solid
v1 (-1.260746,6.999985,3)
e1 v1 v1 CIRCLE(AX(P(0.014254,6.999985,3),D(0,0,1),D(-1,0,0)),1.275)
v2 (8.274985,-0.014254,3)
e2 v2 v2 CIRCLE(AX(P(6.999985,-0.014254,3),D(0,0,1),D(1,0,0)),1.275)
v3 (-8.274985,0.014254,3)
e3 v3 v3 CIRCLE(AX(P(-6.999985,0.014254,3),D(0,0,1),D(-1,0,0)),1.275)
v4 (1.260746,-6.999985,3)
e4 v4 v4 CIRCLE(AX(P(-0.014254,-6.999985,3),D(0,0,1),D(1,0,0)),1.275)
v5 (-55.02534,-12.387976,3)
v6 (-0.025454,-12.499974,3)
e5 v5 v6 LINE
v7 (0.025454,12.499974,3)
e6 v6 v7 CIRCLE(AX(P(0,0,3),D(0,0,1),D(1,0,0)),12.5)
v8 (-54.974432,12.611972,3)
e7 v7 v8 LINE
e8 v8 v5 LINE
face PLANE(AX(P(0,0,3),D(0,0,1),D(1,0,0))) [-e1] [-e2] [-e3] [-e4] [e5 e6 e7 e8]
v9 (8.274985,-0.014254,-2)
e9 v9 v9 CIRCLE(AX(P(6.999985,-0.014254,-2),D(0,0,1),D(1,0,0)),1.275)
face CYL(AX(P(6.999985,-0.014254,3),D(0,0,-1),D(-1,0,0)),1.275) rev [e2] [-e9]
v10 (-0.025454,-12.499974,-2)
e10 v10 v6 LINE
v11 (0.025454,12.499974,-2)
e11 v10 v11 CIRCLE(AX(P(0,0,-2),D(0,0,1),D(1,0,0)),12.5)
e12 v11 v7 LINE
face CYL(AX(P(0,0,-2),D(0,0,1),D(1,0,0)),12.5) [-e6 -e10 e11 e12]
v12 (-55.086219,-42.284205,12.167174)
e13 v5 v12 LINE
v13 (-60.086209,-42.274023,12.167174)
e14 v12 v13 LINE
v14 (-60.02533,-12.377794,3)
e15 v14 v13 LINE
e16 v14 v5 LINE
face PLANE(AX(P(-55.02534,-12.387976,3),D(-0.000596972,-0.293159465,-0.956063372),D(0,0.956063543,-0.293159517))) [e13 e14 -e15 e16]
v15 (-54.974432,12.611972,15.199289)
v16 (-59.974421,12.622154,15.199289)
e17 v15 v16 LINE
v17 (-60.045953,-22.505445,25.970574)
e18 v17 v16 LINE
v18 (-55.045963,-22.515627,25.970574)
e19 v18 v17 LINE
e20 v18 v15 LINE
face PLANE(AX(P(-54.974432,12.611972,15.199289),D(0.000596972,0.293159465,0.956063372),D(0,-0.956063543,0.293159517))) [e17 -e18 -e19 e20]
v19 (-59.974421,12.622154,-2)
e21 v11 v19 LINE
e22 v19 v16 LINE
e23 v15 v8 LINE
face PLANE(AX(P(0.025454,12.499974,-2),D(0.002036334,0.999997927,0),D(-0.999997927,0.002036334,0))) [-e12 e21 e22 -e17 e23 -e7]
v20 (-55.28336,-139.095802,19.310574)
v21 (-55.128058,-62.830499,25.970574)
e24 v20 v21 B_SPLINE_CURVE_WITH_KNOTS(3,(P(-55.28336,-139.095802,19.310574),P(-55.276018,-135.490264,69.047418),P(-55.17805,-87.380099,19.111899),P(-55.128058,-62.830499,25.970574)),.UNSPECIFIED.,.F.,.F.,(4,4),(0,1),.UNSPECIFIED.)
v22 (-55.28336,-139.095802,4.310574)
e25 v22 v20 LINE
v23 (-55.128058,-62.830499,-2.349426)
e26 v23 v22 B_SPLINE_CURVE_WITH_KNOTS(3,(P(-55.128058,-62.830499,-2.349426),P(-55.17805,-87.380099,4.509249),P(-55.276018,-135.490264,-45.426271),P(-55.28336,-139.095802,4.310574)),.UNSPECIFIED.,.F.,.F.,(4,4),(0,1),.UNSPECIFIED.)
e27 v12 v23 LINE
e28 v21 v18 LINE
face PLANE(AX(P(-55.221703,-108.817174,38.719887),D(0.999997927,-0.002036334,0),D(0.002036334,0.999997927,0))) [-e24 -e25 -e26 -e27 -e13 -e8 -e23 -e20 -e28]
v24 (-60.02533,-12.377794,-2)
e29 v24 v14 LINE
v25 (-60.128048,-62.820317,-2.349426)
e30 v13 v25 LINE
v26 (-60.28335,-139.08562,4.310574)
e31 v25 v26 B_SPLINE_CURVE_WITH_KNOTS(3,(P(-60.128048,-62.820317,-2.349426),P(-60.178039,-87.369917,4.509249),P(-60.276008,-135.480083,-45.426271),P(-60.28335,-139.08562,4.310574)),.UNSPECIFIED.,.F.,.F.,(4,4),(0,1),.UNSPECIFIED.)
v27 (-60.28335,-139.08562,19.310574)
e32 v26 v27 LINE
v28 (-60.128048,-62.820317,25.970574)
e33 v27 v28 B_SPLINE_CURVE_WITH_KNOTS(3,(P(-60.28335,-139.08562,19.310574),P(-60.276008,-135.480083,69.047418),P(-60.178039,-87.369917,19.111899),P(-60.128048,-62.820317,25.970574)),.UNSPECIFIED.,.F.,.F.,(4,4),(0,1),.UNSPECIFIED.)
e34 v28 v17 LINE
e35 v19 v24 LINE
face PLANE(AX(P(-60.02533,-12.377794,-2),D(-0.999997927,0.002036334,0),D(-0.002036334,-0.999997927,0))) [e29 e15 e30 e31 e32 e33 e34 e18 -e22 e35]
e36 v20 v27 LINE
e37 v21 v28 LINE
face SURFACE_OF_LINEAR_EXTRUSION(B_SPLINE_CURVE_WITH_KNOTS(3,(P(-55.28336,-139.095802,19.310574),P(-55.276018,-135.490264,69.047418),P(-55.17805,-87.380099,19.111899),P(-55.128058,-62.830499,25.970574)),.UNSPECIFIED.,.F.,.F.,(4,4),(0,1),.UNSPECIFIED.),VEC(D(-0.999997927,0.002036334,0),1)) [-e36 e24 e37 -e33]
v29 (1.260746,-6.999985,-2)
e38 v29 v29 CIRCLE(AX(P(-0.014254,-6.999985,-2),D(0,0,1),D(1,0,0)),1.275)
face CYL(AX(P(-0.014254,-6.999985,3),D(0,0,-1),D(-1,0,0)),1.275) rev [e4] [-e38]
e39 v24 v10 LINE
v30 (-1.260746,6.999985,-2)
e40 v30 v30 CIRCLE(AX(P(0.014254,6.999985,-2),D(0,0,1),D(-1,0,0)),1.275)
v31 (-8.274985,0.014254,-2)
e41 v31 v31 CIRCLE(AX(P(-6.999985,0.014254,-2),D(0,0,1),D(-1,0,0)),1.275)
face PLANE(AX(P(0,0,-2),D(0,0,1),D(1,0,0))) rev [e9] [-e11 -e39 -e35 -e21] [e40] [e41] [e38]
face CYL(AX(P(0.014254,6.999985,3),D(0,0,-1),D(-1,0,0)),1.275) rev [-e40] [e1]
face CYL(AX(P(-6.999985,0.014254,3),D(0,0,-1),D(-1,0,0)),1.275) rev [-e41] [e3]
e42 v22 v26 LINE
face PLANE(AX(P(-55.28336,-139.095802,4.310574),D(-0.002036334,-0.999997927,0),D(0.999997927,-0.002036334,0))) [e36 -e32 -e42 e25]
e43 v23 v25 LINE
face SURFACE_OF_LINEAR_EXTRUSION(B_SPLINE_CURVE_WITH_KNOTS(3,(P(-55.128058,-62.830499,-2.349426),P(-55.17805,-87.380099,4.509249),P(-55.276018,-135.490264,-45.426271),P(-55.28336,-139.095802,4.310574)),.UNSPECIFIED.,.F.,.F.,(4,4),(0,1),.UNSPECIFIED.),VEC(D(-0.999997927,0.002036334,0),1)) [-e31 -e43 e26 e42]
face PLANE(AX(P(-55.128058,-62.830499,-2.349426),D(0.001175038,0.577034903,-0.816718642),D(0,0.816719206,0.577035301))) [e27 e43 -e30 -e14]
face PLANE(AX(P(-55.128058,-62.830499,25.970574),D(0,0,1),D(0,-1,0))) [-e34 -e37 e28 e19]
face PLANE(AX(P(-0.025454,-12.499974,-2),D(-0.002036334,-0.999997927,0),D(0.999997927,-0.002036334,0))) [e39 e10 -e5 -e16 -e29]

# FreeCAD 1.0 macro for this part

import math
import FreeCAD as App
import Part
import Sketcher

V = App.Vector
Q = App.Units.Quantity

doc = App.newDocument("Part")
params = doc.addObject("Spreadsheet::Sheet", "Params")
for row, (alias, value) in enumerate([
    ("sketch1_diameter", "20 mm"),
    ("sketch1_diameter2", "2.55 mm"),
    ("pad1_length", "3 mm"),
    ("sketch2_radius", "12.5 mm"),
    ("sketch2_diameter", "2.55 mm"),
    ("sketch2_length", "60 mm"),
    ("pad2_length", "5 mm"),
    ("sketch3_width", "25 mm"),
    ("pad3_length", "5 mm"),
], start=1):
    params.set(f"A{row}", alias)
    params.set(f"B{row}", "=" + value)
    params.setAlias(f"B{row}", alias)

body = doc.addObject("PartDesign::Body", "Body")

# Sketch on XY plane
sketch1 = doc.addObject("Sketcher::SketchObject", "Sketch")
body.addObject(sketch1)
sketch1.AttachmentSupport = (doc.XY_Plane, [""])
sketch1.MapMode = "FlatFace"
sketch1.addGeometry(Part.Circle(V(0, 0, 0), V(0, 0, 1), 10), False)
sketch1.addGeometry(Part.Circle(V(0, -7, 0), V(0, 0, 1), 1.3), False)
sketch1.addGeometry(Part.Circle(V(7, 0, 0), V(0, 0, 1), 1.3), False)
sketch1.addGeometry(Part.Circle(V(-7, 0, 0), V(0, 0, 1), 1.3), False)
sketch1.addGeometry(Part.Circle(V(0, 7, 0), V(0, 0, 1), 1.3), False)
sketch1.addConstraint(Sketcher.Constraint("Coincident", 0, 3, -1, 1))
sketch1.addConstraint(Sketcher.Constraint("Equal", 1, 2))
sketch1.addConstraint(Sketcher.Constraint("Equal", 2, 3))
sketch1.addConstraint(Sketcher.Constraint("Equal", 3, 4))
sketch1.addConstraint(Sketcher.Constraint("Symmetric", 2, 3, 3, 3, -1, 1))
sketch1.addConstraint(Sketcher.Constraint("Symmetric", 1, 3, 4, 3, -1, 1))
sketch1.addConstraint(Sketcher.Constraint("Diameter", 0, Q("20 mm")))
sketch1.addConstraint(Sketcher.Constraint("Diameter", 1, Q("2.55 mm")))
sketch1.addConstraint(Sketcher.Constraint("DistanceX", 1, 3, 2, 3, Q("7.01424 mm")))
sketch1.addConstraint(Sketcher.Constraint("DistanceY", 1, 3, 2, 3, Q("6.985731 mm")))
sketch1.addConstraint(Sketcher.Constraint("DistanceX", 3, 3, 1, 3, Q("6.985731 mm")))
sketch1.addConstraint(Sketcher.Constraint("DistanceY", 1, 3, 3, 3, Q("7.01424 mm")))
sketch1.setExpression("Constraints[6]", "Params.sketch1_diameter")
sketch1.setExpression("Constraints[7]", "Params.sketch1_diameter2")
pad1 = doc.addObject("PartDesign::Pad", "Pad")
body.addObject(pad1)
pad1.Profile = sketch1
pad1.setExpression("Length", "Params.pad1_length")

# Sketch on XY plane
sketch2 = doc.addObject("Sketcher::SketchObject", "Sketch001")
body.addObject(sketch2)
sketch2.AttachmentSupport = (doc.XY_Plane, [""])
sketch2.MapMode = "FlatFace"
sketch2.AttachmentOffset = App.Placement(V(0, 0, 3), App.Rotation())
sketch2.addGeometry(Part.LineSegment(V(-60, -12.4, 0), V(0, -12.5, 0)), False)
sketch2.addGeometry(Part.ArcOfCircle(Part.Circle(V(0, 0, 0), V(0, 0, 1), 12.5), math.radians(-90), math.radians(90)), False)
sketch2.addGeometry(Part.LineSegment(V(0, 12.5, 0), V(-60, 12.6, 0)), False)
sketch2.addGeometry(Part.LineSegment(V(-60, 12.6, 0), V(-60, -12.4, 0)), False)
sketch2.addGeometry(Part.Circle(V(7, 0, 0), V(0, 0, 1), 1.3), False)
sketch2.addGeometry(Part.Circle(V(0, -7, 0), V(0, 0, 1), 1.3), False)
sketch2.addGeometry(Part.Circle(V(0, 7, 0), V(0, 0, 1), 1.3), False)
sketch2.addGeometry(Part.Circle(V(-7, 0, 0), V(0, 0, 1), 1.3), False)
sketch2.addConstraint(Sketcher.Constraint("Tangent", 0, 2, 1, 1))
sketch2.addConstraint(Sketcher.Constraint("Tangent", 1, 2, 2, 1))
sketch2.addConstraint(Sketcher.Constraint("Coincident", 2, 2, 3, 1))
sketch2.addConstraint(Sketcher.Constraint("Coincident", 3, 2, 0, 1))
sketch2.addConstraint(Sketcher.Constraint("Coincident", 1, 3, -1, 1))
sketch2.addConstraint(Sketcher.Constraint("Equal", 4, 5))
sketch2.addConstraint(Sketcher.Constraint("Equal", 5, 6))
sketch2.addConstraint(Sketcher.Constraint("Equal", 6, 7))
sketch2.addConstraint(Sketcher.Constraint("Symmetric", 5, 3, 6, 3, -1, 1))
sketch2.addConstraint(Sketcher.Constraint("Symmetric", 4, 3, 7, 3, -1, 1))
sketch2.addConstraint(Sketcher.Constraint("Parallel", 0, 2))
sketch2.addConstraint(Sketcher.Constraint("Perpendicular", 2, 3))
sketch2.addConstraint(Sketcher.Constraint("Radius", 1, Q("12.5 mm")))
sketch2.addConstraint(Sketcher.Constraint("Diameter", 4, Q("2.55 mm")))
sketch2.addConstraint(Sketcher.Constraint("Distance", 0, Q("60 mm")))
sketch2.addConstraint(Sketcher.Constraint("DistanceX", 0, 2, 5, 3, Q("0.0112 mm")))
sketch2.addConstraint(Sketcher.Constraint("DistanceY", 7, 3, 2, 2, Q("12.6079 mm")))
sketch2.addConstraint(Sketcher.Constraint("DistanceX", 2, 2, -1, 1, Q("59.974421 mm")))
sketch2.addConstraint(Sketcher.Constraint("DistanceX", 5, 3, 4, 3, Q("7.01424 mm")))
sketch2.addConstraint(Sketcher.Constraint("DistanceY", 5, 3, 4, 3, Q("6.985731 mm")))
sketch2.setExpression("Constraints[12]", "Params.sketch2_radius")
sketch2.setExpression("Constraints[13]", "Params.sketch2_diameter")
sketch2.setExpression("Constraints[14]", "Params.sketch2_length")
pad2 = doc.addObject("PartDesign::Pad", "Pad001")
body.addObject(pad2)
pad2.Profile = sketch2
pad2.setExpression("Length", "Params.pad2_length")
pad2.Reversed = True

# Sketch on an angled plane
sketch3 = doc.addObject("Sketcher::SketchObject", "Sketch002")
body.addObject(sketch3)
sketch3.Placement = App.Placement(V(-59.999876, 0.12218, 0), App.Rotation(V(0.002036334, 0.999997927, 0), V(0, 0, -1.000000001), V(-0.999997927, 0.002036334, 0), "ZXY"))
sketch3.addGeometry(Part.LineSegment(V(-62.942628, -25.970574, 0), V(-22.627672, -25.970574, 0)), False)
sketch3.addGeometry(Part.LineSegment(V(-22.627672, -25.970574, 0), V(12.5, -15.199289, 0)), False)
sketch3.addGeometry(Part.LineSegment(V(12.5, -15.199289, 0), V(12.5, -3, 0)), False)
sketch3.addGeometry(Part.LineSegment(V(12.5, -3, 0), V(-12.5, -3, 0)), False)
sketch3.addGeometry(Part.LineSegment(V(-12.5, -3, 0), V(-42.396291, -12.167174, 0)), False)
sketch3.addGeometry(Part.LineSegment(V(-42.396291, -12.167174, 0), V(-62.942628, 2.349426, 0)), False)
sketch3.addGeometry(Part.BSplineCurve([V(-62.942628, 2.349426, 0), V(-87.492278, -4.509249, 0), V(-135.602544, 45.426271, 0), V(-139.208089, -4.310574, 0)], [4, 4], [0, 1], False, 3, [1, 1, 1, 1], False), False)
sketch3.addGeometry(Part.LineSegment(V(-139.208089, -4.310574, 0), V(-139.208089, -19.310574, 0)), False)
sketch3.addGeometry(Part.BSplineCurve([V(-62.942628, -25.970574, 0), V(-87.492278, -19.111899, 0), V(-135.602544, -69.047419, 0), V(-139.208089, -19.310574, 0)], [4, 4], [0, 1], False, 3, [1, 1, 1, 1], False), False)
sketch3.addConstraint(Sketcher.Constraint("Block", 6))
sketch3.addConstraint(Sketcher.Constraint("Block", 8))
sketch3.addConstraint(Sketcher.Constraint("Coincident", 0, 2, 1, 1))
sketch3.addConstraint(Sketcher.Constraint("Coincident", 1, 2, 2, 1))
sketch3.addConstraint(Sketcher.Constraint("Coincident", 2, 2, 3, 1))
sketch3.addConstraint(Sketcher.Constraint("Coincident", 3, 2, 4, 1))
sketch3.addConstraint(Sketcher.Constraint("Coincident", 4, 2, 5, 1))
sketch3.addConstraint(Sketcher.Constraint("Coincident", 5, 2, 6, 1))
sketch3.addConstraint(Sketcher.Constraint("Coincident", 6, 2, 7, 1))
sketch3.addConstraint(Sketcher.Constraint("Coincident", 7, 2, 8, 2))
sketch3.addConstraint(Sketcher.Constraint("Coincident", 8, 1, 0, 1))
sketch3.addConstraint(Sketcher.Constraint("Horizontal", 0))
sketch3.addConstraint(Sketcher.Constraint("Vertical", 2))
sketch3.addConstraint(Sketcher.Constraint("Horizontal", 3))
sketch3.addConstraint(Sketcher.Constraint("Parallel", 1, 4))
sketch3.addConstraint(Sketcher.Constraint("DistanceX", 3, 2, 3, 1, Q("25 mm")))
sketch3.addConstraint(Sketcher.Constraint("DistanceY", 2, 2, -1, 1, Q("3 mm")))
sketch3.addConstraint(Sketcher.Constraint("DistanceX", -1, 1, 1, 2, Q("12.5 mm")))
sketch3.addConstraint(Sketcher.Constraint("Distance", 4, Q("31.270199 mm")))
sketch3.addConstraint(Sketcher.Constraint("DistanceY", 2, 1, 2, 2, Q("12.199289 mm")))
sketch3.addConstraint(Sketcher.Constraint("DistanceY", 0, 2, 4, 2, Q("13.8034 mm")))
sketch3.setExpression("Constraints[15]", "Params.sketch3_width")
pad3 = doc.addObject("PartDesign::Pad", "Pad002")
body.addObject(pad3)
pad3.Profile = sketch3
pad3.setExpression("Length", "Params.pad3_length")
pad3.Reversed = True

doc.recompute()
